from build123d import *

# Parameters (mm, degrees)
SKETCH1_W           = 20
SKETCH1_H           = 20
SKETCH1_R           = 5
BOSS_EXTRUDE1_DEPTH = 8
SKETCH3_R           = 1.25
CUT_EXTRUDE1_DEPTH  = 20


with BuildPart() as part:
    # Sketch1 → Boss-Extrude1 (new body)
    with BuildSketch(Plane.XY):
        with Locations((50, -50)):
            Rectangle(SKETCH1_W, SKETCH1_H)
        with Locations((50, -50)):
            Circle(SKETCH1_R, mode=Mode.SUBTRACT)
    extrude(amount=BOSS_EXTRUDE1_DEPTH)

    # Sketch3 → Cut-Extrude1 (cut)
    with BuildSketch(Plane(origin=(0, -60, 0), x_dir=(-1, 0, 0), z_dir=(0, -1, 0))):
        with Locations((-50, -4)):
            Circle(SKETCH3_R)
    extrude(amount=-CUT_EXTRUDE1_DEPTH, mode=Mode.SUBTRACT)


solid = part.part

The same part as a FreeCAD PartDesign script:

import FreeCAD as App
import Part
import Sketcher
from FreeCAD import Vector
Q = App.Units.Quantity


def add_polygon(sketch, points):
    """Adds a closed chain of lines whose ends are joined by coincident constraints."""
    first, n = sketch.GeometryCount, len(points)
    for a, b in zip(points, points[1:] + points[:1]):
        sketch.addGeometry(Part.LineSegment(App.Vector(*a, 0), App.Vector(*b, 0)), False)
    for i in range(n):
        sketch.addConstraint(Sketcher.Constraint("Coincident", first + i, 2, first + (i + 1) % n, 1))

doc = App.newDocument("Part")
body = doc.addObject("PartDesign::Body", "Body")

sketch1 = body.newObject("Sketcher::SketchObject", "Sketch")
sketch1.AttachmentSupport = (doc.getObject("XY_Plane"), [""])
sketch1.MapMode = "FlatFace"
add_polygon(sketch1, [(40, -40), (40, -60), (60, -60), (60, -40)])
sketch1.addGeometry(Part.Circle(Vector(50, -50, 0), Vector(0, 0, 1), 5), False)
sketch1.addConstraint(Sketcher.Constraint("Vertical", 0))
sketch1.addConstraint(Sketcher.Constraint("Horizontal", 1))
sketch1.addConstraint(Sketcher.Constraint("Vertical", 2))
sketch1.addConstraint(Sketcher.Constraint("Horizontal", 3))
sketch1.addConstraint(Sketcher.Constraint("Equal", 3, 0))
sketch1.addConstraint(Sketcher.Constraint("Diameter", 4, Q("10 mm")))
sketch1.addConstraint(Sketcher.Constraint("DistanceX", 1, 1, 1, 2, Q("20 mm")))
sketch1.addConstraint(Sketcher.Constraint("DistanceX", -1, 1, 4, 3, Q("50 mm")))
sketch1.addConstraint(Sketcher.Constraint("DistanceY", 4, 3, -1, 1, Q("50 mm")))
sketch1.addConstraint(Sketcher.Constraint("DistanceX", -1, 1, 0, 2, Q("40 mm")))
sketch1.addConstraint(Sketcher.Constraint("DistanceY", 0, 2, -1, 1, Q("60 mm")))
pad1 = body.newObject("PartDesign::Pad", "Pad")
pad1.Profile = sketch1
pad1.Length = 8

sketch2 = body.newObject("Sketcher::SketchObject", "Sketch001")
sketch2.AttachmentSupport = (doc.getObject("XZ_Plane"), [""])
sketch2.MapMode = "FlatFace"
sketch2.AttachmentOffset = App.Placement(Vector(0, 0, 60), App.Rotation())
sketch2.addGeometry(Part.Circle(Vector(50, 4, 0), Vector(0, 0, 1), 1.2), False)
sketch2.addConstraint(Sketcher.Constraint("Diameter", 0, Q("2.5 mm")))
sketch2.addConstraint(Sketcher.Constraint("DistanceX", -1, 1, 0, 3, Q("50 mm")))
sketch2.addConstraint(Sketcher.Constraint("DistanceY", -1, 1, 0, 3, Q("4 mm")))
pocket1 = body.newObject("PartDesign::Pocket", "Pocket")
pocket1.Profile = sketch2
pocket1.Length = 20

doc.recompute()
